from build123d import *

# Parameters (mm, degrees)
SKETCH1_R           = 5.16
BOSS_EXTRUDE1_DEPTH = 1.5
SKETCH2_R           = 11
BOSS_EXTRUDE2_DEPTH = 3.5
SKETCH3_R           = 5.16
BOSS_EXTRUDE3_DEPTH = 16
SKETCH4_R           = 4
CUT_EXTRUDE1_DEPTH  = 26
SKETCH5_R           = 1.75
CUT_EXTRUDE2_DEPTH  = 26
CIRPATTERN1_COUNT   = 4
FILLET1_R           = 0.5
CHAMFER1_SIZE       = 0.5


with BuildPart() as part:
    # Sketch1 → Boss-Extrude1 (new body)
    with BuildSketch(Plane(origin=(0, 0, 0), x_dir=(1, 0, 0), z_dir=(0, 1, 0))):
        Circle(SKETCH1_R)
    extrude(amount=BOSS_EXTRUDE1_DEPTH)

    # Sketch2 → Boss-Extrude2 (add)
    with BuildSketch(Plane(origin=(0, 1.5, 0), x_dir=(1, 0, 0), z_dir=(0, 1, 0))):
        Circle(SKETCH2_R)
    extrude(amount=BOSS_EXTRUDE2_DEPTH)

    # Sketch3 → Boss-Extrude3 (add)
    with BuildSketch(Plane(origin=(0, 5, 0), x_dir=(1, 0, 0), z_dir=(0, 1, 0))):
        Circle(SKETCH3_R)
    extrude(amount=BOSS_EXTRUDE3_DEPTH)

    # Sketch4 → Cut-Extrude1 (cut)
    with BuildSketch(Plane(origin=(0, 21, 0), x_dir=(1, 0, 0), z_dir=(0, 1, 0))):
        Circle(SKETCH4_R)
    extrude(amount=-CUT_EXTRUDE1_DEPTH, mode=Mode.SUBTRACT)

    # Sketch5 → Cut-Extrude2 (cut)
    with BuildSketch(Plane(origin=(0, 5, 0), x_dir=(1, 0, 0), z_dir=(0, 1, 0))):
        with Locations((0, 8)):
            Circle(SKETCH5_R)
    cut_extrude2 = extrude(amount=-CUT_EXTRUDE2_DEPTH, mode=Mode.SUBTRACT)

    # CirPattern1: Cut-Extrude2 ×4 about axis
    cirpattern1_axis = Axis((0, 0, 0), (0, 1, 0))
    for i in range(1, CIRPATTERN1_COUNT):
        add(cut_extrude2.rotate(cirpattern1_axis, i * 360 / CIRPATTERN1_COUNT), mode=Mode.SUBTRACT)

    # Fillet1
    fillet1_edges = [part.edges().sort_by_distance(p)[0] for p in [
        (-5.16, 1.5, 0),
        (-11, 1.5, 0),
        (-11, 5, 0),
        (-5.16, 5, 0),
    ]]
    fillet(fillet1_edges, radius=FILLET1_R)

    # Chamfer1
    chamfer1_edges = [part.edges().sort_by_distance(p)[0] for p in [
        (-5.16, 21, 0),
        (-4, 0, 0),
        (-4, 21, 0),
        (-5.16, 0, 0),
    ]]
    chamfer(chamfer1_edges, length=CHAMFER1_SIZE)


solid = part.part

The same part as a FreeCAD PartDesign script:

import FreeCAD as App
import Part
import Sketcher
from FreeCAD import Vector
Q = App.Units.Quantity


def edges_at(feature, points):
    """Names of the edges that pass closest to the given points."""
    edges = feature.Shape.Edges
    near = lambda p: min(range(len(edges)), key=lambda i: edges[i].distToShape(Part.Vertex(*p))[0])
    return sorted({f"Edge{near(p) + 1}" for p in points})

doc = App.newDocument("Part")
body = doc.addObject("PartDesign::Body", "Body")

# Sketch on XZ plane
sketch1 = body.newObject("Sketcher::SketchObject", "Sketch")
sketch1.AttachmentSupport = (doc.getObject("XZ_Plane"), [""])
sketch1.MapMode = "FlatFace"
sketch1.addGeometry(Part.Circle(Vector(0, 0, 0), Vector(0, 0, 1), 5.16), False)
sketch1.addConstraint([
    Sketcher.Constraint("Coincident", 0, 3, -1, 1),
    Sketcher.Constraint("Diameter", 0, Q("10.32 mm")),
])
pad1 = body.newObject("PartDesign::Pad", "Pad")
pad1.Profile = sketch1
pad1.Length = 1.5
pad1.Reversed = True

# Sketch on XZ plane
sketch2 = body.newObject("Sketcher::SketchObject", "Sketch001")
sketch2.AttachmentSupport = (doc.getObject("XZ_Plane"), [""])
sketch2.MapMode = "FlatFace"
sketch2.AttachmentOffset = App.Placement(Vector(0, 0, -1.5), App.Rotation())
sketch2.addGeometry(Part.Circle(Vector(0, 0, 0), Vector(0, 0, 1), 11), False)
sketch2.addConstraint([
    Sketcher.Constraint("Coincident", 0, 3, -1, 1),
    Sketcher.Constraint("Diameter", 0, Q("22 mm")),
])
pad2 = body.newObject("PartDesign::Pad", "Pad001")
pad2.Profile = sketch2
pad2.Length = 3.5
pad2.Reversed = True

# Sketch on XZ plane
sketch3 = body.newObject("Sketcher::SketchObject", "Sketch002")
sketch3.AttachmentSupport = (doc.getObject("XZ_Plane"), [""])
sketch3.MapMode = "FlatFace"
sketch3.AttachmentOffset = App.Placement(Vector(0, 0, -5), App.Rotation())
sketch3.addGeometry(Part.Circle(Vector(0, 0, 0), Vector(0, 0, 1), 5.16), False)
sketch3.addConstraint([
    Sketcher.Constraint("Coincident", 0, 3, -1, 1),
    Sketcher.Constraint("Diameter", 0, Q("10.32 mm")),
])
pad3 = body.newObject("PartDesign::Pad", "Pad002")
pad3.Profile = sketch3
pad3.Length = 16
pad3.Reversed = True

# Sketch on XZ plane
sketch4 = body.newObject("Sketcher::SketchObject", "Sketch003")
sketch4.AttachmentSupport = (doc.getObject("XZ_Plane"), [""])
sketch4.MapMode = "FlatFace"
sketch4.AttachmentOffset = App.Placement(Vector(0, 0, -21), App.Rotation())
sketch4.addGeometry(Part.Circle(Vector(0, 0, 0), Vector(0, 0, 1), 4), False)
sketch4.addConstraint([
    Sketcher.Constraint("Coincident", 0, 3, -1, 1),
    Sketcher.Constraint("Diameter", 0, Q("8 mm")),
])
pocket1 = body.newObject("PartDesign::Pocket", "Pocket")
pocket1.Profile = sketch4
pocket1.Length = 26
pocket1.Reversed = True

# Sketch on XZ plane
sketch5 = body.newObject("Sketcher::SketchObject", "Sketch004")
sketch5.AttachmentSupport = (doc.getObject("XZ_Plane"), [""])
sketch5.MapMode = "FlatFace"
sketch5.AttachmentOffset = App.Placement(Vector(0, 0, -5), App.Rotation())
sketch5.addGeometry(Part.Circle(Vector(0, -8, 0), Vector(0, 0, 1), 1.75), False)
sketch5.addConstraint([
    Sketcher.Constraint("PointOnObject", 0, 3, -2),
    Sketcher.Constraint("Diameter", 0, Q("3.5 mm")),
    Sketcher.Constraint("DistanceY", 0, 3, -1, 1, Q("8 mm")),
])
pocket2 = body.newObject("PartDesign::Pocket", "Pocket001")
pocket2.Profile = sketch5
pocket2.Length = 26
pocket2.Reversed = True
doc.recompute()

polarpattern = body.newObject("PartDesign::PolarPattern", "PolarPattern")
polarpattern.Originals = [pocket2]
polarpattern.Axis = (doc.getObject("Y_Axis"), [""])
polarpattern.Angle = 360
polarpattern.Occurrences = 4
body.Tip = polarpattern
doc.recompute()

fillet = body.newObject("PartDesign::Fillet", "Fillet")
fillet.Base = (polarpattern, edges_at(polarpattern, [
    (-5.16, 1.5, 0),
    (-11, 1.5, 0),
    (-11, 5, 0),
    (-5.16, 5, 0),
]))
fillet.Radius = 0.5
doc.recompute()

chamfer = body.newObject("PartDesign::Chamfer", "Chamfer")
chamfer.Base = (fillet, edges_at(fillet, [
    (-5.16, 21, 0),
    (-4, 0, 0),
    (-4, 21, 0),
    (-5.16, 0, 0),
]))
chamfer.Size = 0.5

doc.recompute()
